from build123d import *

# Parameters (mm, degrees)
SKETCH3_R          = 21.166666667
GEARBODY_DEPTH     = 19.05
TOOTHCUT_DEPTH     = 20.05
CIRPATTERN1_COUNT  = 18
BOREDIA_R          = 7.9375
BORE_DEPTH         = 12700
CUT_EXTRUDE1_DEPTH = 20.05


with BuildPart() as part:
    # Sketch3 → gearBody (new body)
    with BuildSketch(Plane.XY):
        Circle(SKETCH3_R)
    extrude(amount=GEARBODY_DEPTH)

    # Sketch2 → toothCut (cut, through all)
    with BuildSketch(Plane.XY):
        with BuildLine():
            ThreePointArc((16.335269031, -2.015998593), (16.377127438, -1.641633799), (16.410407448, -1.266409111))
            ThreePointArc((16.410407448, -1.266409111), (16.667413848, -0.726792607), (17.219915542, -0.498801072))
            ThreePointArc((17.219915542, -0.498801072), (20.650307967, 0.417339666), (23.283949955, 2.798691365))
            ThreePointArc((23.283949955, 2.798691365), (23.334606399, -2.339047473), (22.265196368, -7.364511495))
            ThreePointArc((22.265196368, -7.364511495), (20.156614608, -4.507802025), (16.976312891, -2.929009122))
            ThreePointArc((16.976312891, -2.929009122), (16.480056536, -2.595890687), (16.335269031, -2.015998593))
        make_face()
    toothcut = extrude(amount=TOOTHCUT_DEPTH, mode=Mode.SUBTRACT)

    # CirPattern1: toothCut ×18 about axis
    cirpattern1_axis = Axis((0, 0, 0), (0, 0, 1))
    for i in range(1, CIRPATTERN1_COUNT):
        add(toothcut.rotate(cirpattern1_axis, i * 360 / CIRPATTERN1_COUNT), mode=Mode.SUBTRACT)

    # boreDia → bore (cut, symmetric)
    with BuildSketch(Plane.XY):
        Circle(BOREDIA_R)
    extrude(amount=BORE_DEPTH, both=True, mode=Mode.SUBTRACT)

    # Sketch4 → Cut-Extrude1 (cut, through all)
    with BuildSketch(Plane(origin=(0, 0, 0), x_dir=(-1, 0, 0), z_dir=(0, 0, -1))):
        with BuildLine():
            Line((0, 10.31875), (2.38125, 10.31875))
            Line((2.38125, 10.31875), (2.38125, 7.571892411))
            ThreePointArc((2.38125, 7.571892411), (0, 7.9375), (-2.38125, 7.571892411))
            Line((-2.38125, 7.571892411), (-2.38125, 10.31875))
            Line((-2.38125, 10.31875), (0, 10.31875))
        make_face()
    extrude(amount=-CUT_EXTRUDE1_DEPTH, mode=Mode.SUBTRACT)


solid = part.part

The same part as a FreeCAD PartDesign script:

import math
import FreeCAD as App
import Part
import Sketcher
from FreeCAD import Vector
Q = App.Units.Quantity

doc = App.newDocument("Part")
params = doc.addObject("Spreadsheet::Sheet", "Params")
for row, (alias, value) in enumerate([
    ("pad1_length", "0.75 in"),
    ("sketch2_radius", "0.648 in"),
    ("sketch3_diameter", "0.625 in"),
    ("pocket2_length", "1000 in"),
    ("sketch4_radius", "0.3125 in"),
    ("sketch4_width", "0.1875 in"),
], start=1):
    params.set(f"A{row}", alias)
    params.set(f"B{row}", "=" + value)
    params.setAlias(f"B{row}", alias)

body = doc.addObject("PartDesign::Body", "Body")

sketch1 = body.newObject("Sketcher::SketchObject", "Sketch")
sketch1.AttachmentSupport = (doc.getObject("XY_Plane"), [""])
sketch1.MapMode = "FlatFace"
sketch1.addGeometry(Part.Circle(Vector(0, 0, 0), Vector(0, 0, 1), 21), False)
sketch1.addConstraint([
    Sketcher.Constraint("Coincident", 0, 3, -1, 1),
    Sketcher.Constraint("Diameter", 0, Q("42.333333 mm")),
])
pad1 = body.newObject("PartDesign::Pad", "Pad")
pad1.Profile = sketch1
pad1.setExpression("Length", "Params.pad1_length")

sketch2 = body.newObject("Sketcher::SketchObject", "Sketch001")
sketch2.AttachmentSupport = (doc.getObject("XY_Plane"), [""])
sketch2.MapMode = "FlatFace"
sketch2.addGeometry([
    Part.ArcOfCircle(Part.Circle(Vector(0, 0, 0), Vector(0, 0, 1), 16.5), math.radians(-7.04), math.radians(-4.41)),
    Part.ArcOfCircle(Part.Circle(Vector(17.2, -2.1, 0), Vector(0, 0, 1), 0.8), math.radians(173), math.radians(257)),
    Part.ArcOfCircle(Part.Circle(Vector(15.3, -10.3, 0), Vector(0, 0, 1), 7.6), math.radians(23), math.radians(77)),
    Part.ArcOfCircle(Part.Circle(Vector(0, 0, 0), Vector(0, 0, 1), 23.5), math.radians(-18), math.radians(7)),
    Part.ArcOfCircle(Part.Circle(Vector(17, 7.1, 0), Vector(0, 0, 1), 7.6), math.radians(-89), math.radians(-34)),
    Part.ArcOfCircle(Part.Circle(Vector(17.2, -1.3, 0), Vector(0, 0, 1), 0.8), math.radians(91), math.radians(176)),
], False)
sketch2.addConstraint([
    Sketcher.Constraint("Tangent", 0, 1, 1, 1),
    Sketcher.Constraint("Tangent", 1, 2, 2, 2),
    Sketcher.Constraint("Coincident", 2, 1, 3, 1),
    Sketcher.Constraint("Coincident", 3, 2, 4, 2),
    Sketcher.Constraint("Tangent", 4, 1, 5, 1),
    Sketcher.Constraint("Tangent", 5, 2, 0, 2),
    Sketcher.Constraint("Coincident", 0, 3, -1, 1),
    Sketcher.Constraint("Coincident", 3, 3, -1, 1),
    Sketcher.Constraint("Equal", 2, 4),
    Sketcher.Constraint("Equal", 1, 5),
    Sketcher.Constraint("Radius", 0, Q("0.648 in")),
    Sketcher.Constraint("Radius", 1, Q("0.83185 mm")),
    Sketcher.Constraint("Radius", 2, Q("7.558871 mm")),
    Sketcher.Constraint("Radius", 3, Q("23.451546 mm")),
    Sketcher.Constraint("DistanceX", 2, 3, 4, 3, Q("0.0685 in")),
    Sketcher.Constraint("DistanceY", 1, 2, 3, 2, Q("0.2255 in")),
    Sketcher.Constraint("DistanceY", 0, 1, -1, 1, Q("2.015999 mm")),
    Sketcher.Constraint("DistanceY", 4, 1, -1, 1, Q("0.498801 mm")),
])
sketch2.setExpression("Constraints[10]", "Params.sketch2_radius")
pocket1 = body.newObject("PartDesign::Pocket", "Pocket")
pocket1.Profile = sketch2
pocket1.Type = "ThroughAll"
pocket1.Reversed = True
doc.recompute()

polarpattern = body.newObject("PartDesign::PolarPattern", "PolarPattern")
polarpattern.Originals = [pocket1]
polarpattern.Axis = (doc.getObject("Z_Axis"), [""])
polarpattern.Angle = 360
polarpattern.Occurrences = 18
body.Tip = polarpattern

sketch3 = body.newObject("Sketcher::SketchObject", "Sketch002")
sketch3.AttachmentSupport = (doc.getObject("XY_Plane"), [""])
sketch3.MapMode = "FlatFace"
sketch3.addGeometry(Part.Circle(Vector(0, 0, 0), Vector(0, 0, 1), 8), False)
sketch3.addConstraint([
    Sketcher.Constraint("Coincident", 0, 3, -1, 1),
    Sketcher.Constraint("Diameter", 0, Q("0.625 in")),
])
sketch3.setExpression("Constraints[1]", "Params.sketch3_diameter")
pocket2 = body.newObject("PartDesign::Pocket", "Pocket001")
pocket2.Profile = sketch3
pocket2.setExpression("Length", "Params.pocket2_length")
pocket2.Midplane = True

sketch4 = body.newObject("Sketcher::SketchObject", "Sketch003")
sketch4.AttachmentSupport = (doc.getObject("XY_Plane"), [""])
sketch4.MapMode = "FlatFace"
sketch4.addGeometry([
    Part.LineSegment(Vector(-2.4, 7.6, 0), Vector(-2.4, 10.3, 0)),
    Part.LineSegment(Vector(-2.4, 10.3, 0), Vector(2.4, 10.3, 0)),
    Part.LineSegment(Vector(2.4, 10.3, 0), Vector(2.4, 7.6, 0)),
    Part.ArcOfCircle(Part.Circle(Vector(0, 0, 0), Vector(0, 0, 1), 7.9), math.radians(73), math.radians(107)),
], False)
sketch4.addConstraint([
    Sketcher.Constraint("Coincident", 0, 2, 1, 1),
    Sketcher.Constraint("Coincident", 1, 2, 2, 1),
    Sketcher.Constraint("Coincident", 2, 2, 3, 1),
    Sketcher.Constraint("Coincident", 3, 2, 0, 1),
    Sketcher.Constraint("Vertical", 0),
    Sketcher.Constraint("Horizontal", 1),
    Sketcher.Constraint("Vertical", 2),
    Sketcher.Constraint("Coincident", 3, 3, -1, 1),
    Sketcher.Constraint("Horizontal", 2, 2, 3, 2),
    Sketcher.Constraint("Radius", 3, Q("0.3125 in")),
    Sketcher.Constraint("DistanceX", 1, 1, 1, 2, Q("0.1875 in")),
    Sketcher.Constraint("DistanceY", -1, 1, 0, 2, Q("0.40625 in")),
])
sketch4.setExpression("Constraints[9]", "Params.sketch4_radius")
sketch4.setExpression("Constraints[10]", "Params.sketch4_width")
pocket3 = body.newObject("PartDesign::Pocket", "Pocket002")
pocket3.Profile = sketch4
pocket3.Type = "ThroughAll"
pocket3.Reversed = True

doc.recompute()
